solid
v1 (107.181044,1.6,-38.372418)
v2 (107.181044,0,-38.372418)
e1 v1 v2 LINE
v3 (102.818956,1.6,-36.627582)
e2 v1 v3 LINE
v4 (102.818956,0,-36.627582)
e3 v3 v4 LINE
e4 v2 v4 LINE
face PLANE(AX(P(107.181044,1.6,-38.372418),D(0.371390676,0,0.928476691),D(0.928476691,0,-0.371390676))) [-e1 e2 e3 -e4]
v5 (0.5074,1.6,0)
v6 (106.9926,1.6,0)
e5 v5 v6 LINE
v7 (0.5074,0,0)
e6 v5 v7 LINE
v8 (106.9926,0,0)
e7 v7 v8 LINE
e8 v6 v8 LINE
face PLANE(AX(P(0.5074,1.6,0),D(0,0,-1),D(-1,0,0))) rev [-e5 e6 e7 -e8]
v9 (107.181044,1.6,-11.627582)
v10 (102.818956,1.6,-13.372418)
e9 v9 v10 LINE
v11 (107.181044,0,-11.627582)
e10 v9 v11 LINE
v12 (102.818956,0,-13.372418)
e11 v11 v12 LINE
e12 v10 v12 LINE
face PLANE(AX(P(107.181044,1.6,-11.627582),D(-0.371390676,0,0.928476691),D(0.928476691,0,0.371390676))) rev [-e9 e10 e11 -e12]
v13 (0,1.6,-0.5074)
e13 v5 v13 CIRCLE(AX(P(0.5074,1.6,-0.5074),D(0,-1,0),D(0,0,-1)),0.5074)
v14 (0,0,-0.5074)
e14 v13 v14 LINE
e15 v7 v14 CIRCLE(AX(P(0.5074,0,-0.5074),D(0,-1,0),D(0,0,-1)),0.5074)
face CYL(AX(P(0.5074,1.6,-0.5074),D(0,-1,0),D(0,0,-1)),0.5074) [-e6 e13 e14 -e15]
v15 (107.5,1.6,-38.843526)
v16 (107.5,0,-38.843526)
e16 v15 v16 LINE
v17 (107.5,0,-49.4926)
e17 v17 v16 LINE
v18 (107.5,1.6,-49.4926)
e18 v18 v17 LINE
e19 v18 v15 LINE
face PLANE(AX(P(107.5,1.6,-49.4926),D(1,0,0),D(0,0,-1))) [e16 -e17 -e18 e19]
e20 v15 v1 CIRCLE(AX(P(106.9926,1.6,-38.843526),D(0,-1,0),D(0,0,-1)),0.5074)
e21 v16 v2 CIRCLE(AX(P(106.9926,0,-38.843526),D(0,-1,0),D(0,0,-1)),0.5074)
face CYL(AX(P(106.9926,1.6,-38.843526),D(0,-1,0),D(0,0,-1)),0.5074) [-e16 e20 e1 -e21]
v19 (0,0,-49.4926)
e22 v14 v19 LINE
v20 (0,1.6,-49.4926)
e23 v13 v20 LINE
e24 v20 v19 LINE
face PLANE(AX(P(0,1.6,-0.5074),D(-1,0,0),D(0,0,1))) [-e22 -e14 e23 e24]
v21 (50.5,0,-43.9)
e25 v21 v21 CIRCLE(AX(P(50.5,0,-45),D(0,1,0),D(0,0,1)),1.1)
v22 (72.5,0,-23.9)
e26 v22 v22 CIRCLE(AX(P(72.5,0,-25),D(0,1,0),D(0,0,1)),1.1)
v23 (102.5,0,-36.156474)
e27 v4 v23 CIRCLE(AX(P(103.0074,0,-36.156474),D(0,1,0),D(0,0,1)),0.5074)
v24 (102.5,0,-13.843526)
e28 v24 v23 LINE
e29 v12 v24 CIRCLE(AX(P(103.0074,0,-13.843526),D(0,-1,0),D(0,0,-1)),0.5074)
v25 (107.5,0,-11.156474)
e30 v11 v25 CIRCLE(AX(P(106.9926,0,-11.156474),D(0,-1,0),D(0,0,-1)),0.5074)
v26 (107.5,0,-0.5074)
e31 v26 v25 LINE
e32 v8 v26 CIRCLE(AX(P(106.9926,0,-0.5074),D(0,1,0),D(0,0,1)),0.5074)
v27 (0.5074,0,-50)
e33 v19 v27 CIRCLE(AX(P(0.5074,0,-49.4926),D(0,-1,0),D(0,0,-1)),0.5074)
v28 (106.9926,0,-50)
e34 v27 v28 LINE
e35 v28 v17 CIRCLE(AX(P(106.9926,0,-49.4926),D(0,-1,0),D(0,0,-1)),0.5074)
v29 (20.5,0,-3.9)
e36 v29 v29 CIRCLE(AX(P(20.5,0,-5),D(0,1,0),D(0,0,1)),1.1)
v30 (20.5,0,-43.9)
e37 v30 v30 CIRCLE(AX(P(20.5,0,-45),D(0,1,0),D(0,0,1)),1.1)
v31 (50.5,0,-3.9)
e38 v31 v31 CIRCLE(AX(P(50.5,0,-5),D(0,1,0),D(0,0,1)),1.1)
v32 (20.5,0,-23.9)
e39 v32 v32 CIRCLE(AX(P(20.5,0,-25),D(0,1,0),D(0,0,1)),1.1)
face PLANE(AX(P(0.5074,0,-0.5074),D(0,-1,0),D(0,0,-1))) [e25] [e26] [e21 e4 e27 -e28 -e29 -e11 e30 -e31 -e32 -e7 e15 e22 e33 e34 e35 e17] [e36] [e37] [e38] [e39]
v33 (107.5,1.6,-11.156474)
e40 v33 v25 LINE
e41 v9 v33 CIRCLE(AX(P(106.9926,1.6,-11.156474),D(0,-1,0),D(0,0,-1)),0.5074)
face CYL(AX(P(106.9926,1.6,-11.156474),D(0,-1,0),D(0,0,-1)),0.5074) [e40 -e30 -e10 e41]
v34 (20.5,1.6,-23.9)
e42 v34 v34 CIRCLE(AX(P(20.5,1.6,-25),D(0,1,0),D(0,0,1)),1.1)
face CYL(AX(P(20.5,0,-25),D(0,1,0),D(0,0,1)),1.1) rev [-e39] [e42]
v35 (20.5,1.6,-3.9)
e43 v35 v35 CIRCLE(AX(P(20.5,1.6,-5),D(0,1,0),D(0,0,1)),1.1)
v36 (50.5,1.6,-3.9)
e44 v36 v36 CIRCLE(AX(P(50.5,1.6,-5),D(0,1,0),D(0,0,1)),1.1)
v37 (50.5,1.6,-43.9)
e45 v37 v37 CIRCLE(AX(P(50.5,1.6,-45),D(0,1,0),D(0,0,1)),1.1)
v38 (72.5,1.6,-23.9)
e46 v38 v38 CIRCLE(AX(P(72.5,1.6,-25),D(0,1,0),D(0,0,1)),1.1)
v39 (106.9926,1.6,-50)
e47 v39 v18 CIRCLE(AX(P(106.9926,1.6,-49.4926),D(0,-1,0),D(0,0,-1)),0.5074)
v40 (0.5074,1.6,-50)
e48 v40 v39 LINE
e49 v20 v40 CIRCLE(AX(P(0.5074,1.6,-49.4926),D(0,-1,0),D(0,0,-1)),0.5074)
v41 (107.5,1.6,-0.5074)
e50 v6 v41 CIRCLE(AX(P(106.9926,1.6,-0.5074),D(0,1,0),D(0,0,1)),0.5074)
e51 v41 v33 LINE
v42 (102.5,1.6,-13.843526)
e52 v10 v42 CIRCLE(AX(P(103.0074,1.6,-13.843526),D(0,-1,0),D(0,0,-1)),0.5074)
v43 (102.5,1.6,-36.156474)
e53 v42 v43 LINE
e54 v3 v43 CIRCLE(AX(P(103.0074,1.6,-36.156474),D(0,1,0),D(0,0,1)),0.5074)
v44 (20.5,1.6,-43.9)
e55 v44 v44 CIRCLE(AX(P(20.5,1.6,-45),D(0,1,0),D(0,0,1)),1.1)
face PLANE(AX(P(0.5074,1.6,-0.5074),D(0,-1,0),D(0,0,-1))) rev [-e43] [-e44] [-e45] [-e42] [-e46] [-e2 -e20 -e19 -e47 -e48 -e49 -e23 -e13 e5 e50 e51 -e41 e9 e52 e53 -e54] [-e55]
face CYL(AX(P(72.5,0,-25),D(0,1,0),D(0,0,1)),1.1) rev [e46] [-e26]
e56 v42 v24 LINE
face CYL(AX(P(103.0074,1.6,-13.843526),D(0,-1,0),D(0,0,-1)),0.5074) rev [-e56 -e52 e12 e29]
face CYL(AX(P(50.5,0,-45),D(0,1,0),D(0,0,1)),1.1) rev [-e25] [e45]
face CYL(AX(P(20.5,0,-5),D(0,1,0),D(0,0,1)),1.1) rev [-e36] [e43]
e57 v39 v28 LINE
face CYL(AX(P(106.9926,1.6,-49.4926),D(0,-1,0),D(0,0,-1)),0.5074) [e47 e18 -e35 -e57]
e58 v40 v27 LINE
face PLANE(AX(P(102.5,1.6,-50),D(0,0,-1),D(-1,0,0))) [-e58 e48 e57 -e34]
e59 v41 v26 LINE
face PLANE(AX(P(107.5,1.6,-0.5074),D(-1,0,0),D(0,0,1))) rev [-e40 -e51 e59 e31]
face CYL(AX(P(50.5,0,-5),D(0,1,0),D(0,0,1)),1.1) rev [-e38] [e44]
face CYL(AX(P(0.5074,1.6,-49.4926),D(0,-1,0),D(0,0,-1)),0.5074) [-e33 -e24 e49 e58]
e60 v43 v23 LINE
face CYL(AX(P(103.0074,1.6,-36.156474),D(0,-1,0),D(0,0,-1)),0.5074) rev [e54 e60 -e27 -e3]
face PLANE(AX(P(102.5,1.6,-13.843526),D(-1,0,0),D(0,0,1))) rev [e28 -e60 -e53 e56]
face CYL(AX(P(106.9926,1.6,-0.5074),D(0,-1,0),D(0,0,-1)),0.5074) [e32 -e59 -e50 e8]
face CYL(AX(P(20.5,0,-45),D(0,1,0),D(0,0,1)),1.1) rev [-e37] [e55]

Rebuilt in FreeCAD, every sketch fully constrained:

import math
import FreeCAD as App
import Part
import Sketcher
from FreeCAD import Vector

doc = App.newDocument("Part")
body = doc.addObject("PartDesign::Body", "Body")

sketch1 = doc.addObject("Sketcher::SketchObject", "Sketch")
body.addObject(sketch1)
sketch1.AttachmentSupport = (doc.XZ_Plane, [""])
sketch1.MapMode = "FlatFace"
sketch1.addGeometry(Part.ArcOfCircle(Part.Circle(Vector(107, -49.5, 0), Vector(0, 0, 1), 0.5), math.radians(-90), math.radians(0)), False)
sketch1.addGeometry(Part.LineSegment(Vector(107, -50, 0), Vector(0.5, -50, 0)), False)
sketch1.addGeometry(Part.ArcOfCircle(Part.Circle(Vector(0.5, -49.5, 0), Vector(0, 0, 1), 0.5), math.radians(-180), math.radians(-90)), False)
sketch1.addGeometry(Part.LineSegment(Vector(0, -49.5, 0), Vector(0, -0.5, 0)), False)
sketch1.addGeometry(Part.ArcOfCircle(Part.Circle(Vector(0.5, -0.5, 0), Vector(0, 0, 1), 0.5), math.radians(90), math.radians(180)), False)
sketch1.addGeometry(Part.LineSegment(Vector(0.5, 0, 0), Vector(107, 0, 0)), False)
sketch1.addGeometry(Part.ArcOfCircle(Part.Circle(Vector(107, -0.5, 0), Vector(0, 0, 1), 0.5), math.radians(0), math.radians(90)), False)
sketch1.addGeometry(Part.LineSegment(Vector(107.5, -0.5, 0), Vector(107.5, -11.2, 0)), False)
sketch1.addGeometry(Part.ArcOfCircle(Part.Circle(Vector(107, -11.2, 0), Vector(0, 0, 1), 0.5), math.radians(-68), math.radians(0)), False)
sketch1.addGeometry(Part.LineSegment(Vector(107.2, -11.6, 0), Vector(102.8, -13.4, 0)), False)
sketch1.addGeometry(Part.ArcOfCircle(Part.Circle(Vector(103, -13.8, 0), Vector(0, 0, 1), 0.5), math.radians(112), math.radians(180)), False)
sketch1.addGeometry(Part.LineSegment(Vector(102.5, -13.8, 0), Vector(102.5, -36.2, 0)), False)
sketch1.addGeometry(Part.ArcOfCircle(Part.Circle(Vector(103, -36.2, 0), Vector(0, 0, 1), 0.5), math.radians(180), math.radians(248)), False)
sketch1.addGeometry(Part.LineSegment(Vector(102.8, -36.6, 0), Vector(107.2, -38.4, 0)), False)
sketch1.addGeometry(Part.ArcOfCircle(Part.Circle(Vector(107, -38.8, 0), Vector(0, 0, 1), 0.5), math.radians(0), math.radians(68)), False)
sketch1.addGeometry(Part.LineSegment(Vector(107.5, -38.8, 0), Vector(107.5, -49.5, 0)), False)
sketch1.addConstraint(Sketcher.Constraint("Tangent", 0, 1, 1, 1))
sketch1.addConstraint(Sketcher.Constraint("Tangent", 1, 2, 2, 2))
sketch1.addConstraint(Sketcher.Constraint("Tangent", 2, 1, 3, 1))
sketch1.addConstraint(Sketcher.Constraint("Tangent", 3, 2, 4, 2))
sketch1.addConstraint(Sketcher.Constraint("Tangent", 4, 1, 5, 1))
sketch1.addConstraint(Sketcher.Constraint("Tangent", 5, 2, 6, 2))
sketch1.addConstraint(Sketcher.Constraint("Tangent", 6, 1, 7, 1))
sketch1.addConstraint(Sketcher.Constraint("Tangent", 7, 2, 8, 2))
sketch1.addConstraint(Sketcher.Constraint("Tangent", 8, 1, 9, 1))
sketch1.addConstraint(Sketcher.Constraint("Tangent", 9, 2, 10, 1))
sketch1.addConstraint(Sketcher.Constraint("Tangent", 10, 2, 11, 1))
sketch1.addConstraint(Sketcher.Constraint("Tangent", 11, 2, 12, 1))
sketch1.addConstraint(Sketcher.Constraint("Tangent", 12, 2, 13, 1))
sketch1.addConstraint(Sketcher.Constraint("Tangent", 13, 2, 14, 2))
sketch1.addConstraint(Sketcher.Constraint("Tangent", 14, 1, 15, 1))
sketch1.addConstraint(Sketcher.Constraint("Tangent", 15, 2, 0, 2))
sketch1.addConstraint(Sketcher.Constraint("Horizontal", 1))
sketch1.addConstraint(Sketcher.Constraint("Vertical", 3))
sketch1.addConstraint(Sketcher.Constraint("Horizontal", 5))
sketch1.addConstraint(Sketcher.Constraint("Vertical", 7))
sketch1.addConstraint(Sketcher.Constraint("Vertical", 11))
sketch1.addConstraint(Sketcher.Constraint("Vertical", 15))
sketch1.addConstraint(Sketcher.Constraint("Equal", 0, 2))
sketch1.addConstraint(Sketcher.Constraint("Equal", 2, 4))
sketch1.addConstraint(Sketcher.Constraint("Equal", 4, 6))
sketch1.addConstraint(Sketcher.Constraint("Equal", 6, 8))
sketch1.addConstraint(Sketcher.Constraint("Equal", 8, 10))
sketch1.addConstraint(Sketcher.Constraint("Equal", 10, 12))
sketch1.addConstraint(Sketcher.Constraint("Equal", 12, 14))
sketch1.addConstraint(Sketcher.Constraint("PointOnObject", 2, 1, -2))
sketch1.addConstraint(Sketcher.Constraint("PointOnObject", 4, 1, -1))
sketch1.addConstraint(Sketcher.Constraint("Vertical", 0, 3, 6, 3))
sketch1.addConstraint(Sketcher.Constraint("Vertical", 9, 2, 12, 2))
sketch1.addConstraint(Sketcher.Constraint("Equal", 7, 15))
sketch1.addConstraint(Sketcher.Constraint("DistanceY", 0, 1, -1, 1, 50.0))
sketch1.addConstraint(Sketcher.Constraint("DistanceY", 12, 3, 8, 3, 25.0))
sketch1.addConstraint(Sketcher.Constraint("DistanceX", 10, 2, 7, 2, 5.0))
sketch1.addConstraint(Sketcher.Constraint("DistanceX", -1, 1, 6, 1, 107.5))
sketch1.addConstraint(Sketcher.Constraint("Radius", 0, 0.5074))
sketch1.addConstraint(Sketcher.Constraint("DistanceY", 7, 2, 7, 1, 10.649074))
pad1 = doc.addObject("PartDesign::Pad", "Pad")
body.addObject(pad1)
pad1.Profile = sketch1
pad1.Length = 1.6
pad1.Reversed = True

sketch2 = doc.addObject("Sketcher::SketchObject", "Sketch001")
body.addObject(sketch2)
sketch2.AttachmentSupport = (doc.XZ_Plane, [""])
sketch2.MapMode = "FlatFace"
sketch2.AttachmentOffset = App.Placement(Vector(0, 0, -1.6), App.Rotation())
sketch2.addGeometry(Part.Circle(Vector(20.5, -5, 0), Vector(0, 0, 1), 1.1), False)
sketch2.addGeometry(Part.Circle(Vector(20.5, -25, 0), Vector(0, 0, 1), 1.1), False)
sketch2.addGeometry(Part.Circle(Vector(20.5, -45, 0), Vector(0, 0, 1), 1.1), False)
sketch2.addGeometry(Part.Circle(Vector(50.5, -45, 0), Vector(0, 0, 1), 1.1), False)
sketch2.addGeometry(Part.Circle(Vector(50.5, -5, 0), Vector(0, 0, 1), 1.1), False)
sketch2.addGeometry(Part.Circle(Vector(72.5, -25, 0), Vector(0, 0, 1), 1.1), False)
sketch2.addConstraint(Sketcher.Constraint("Equal", 0, 1))
sketch2.addConstraint(Sketcher.Constraint("Equal", 1, 2))
sketch2.addConstraint(Sketcher.Constraint("Equal", 2, 3))
sketch2.addConstraint(Sketcher.Constraint("Equal", 3, 4))
sketch2.addConstraint(Sketcher.Constraint("Equal", 4, 5))
sketch2.addConstraint(Sketcher.Constraint("Horizontal", 2, 3, 3, 3))
sketch2.addConstraint(Sketcher.Constraint("Horizontal", 0, 3, 4, 3))
sketch2.addConstraint(Sketcher.Constraint("Horizontal", 1, 3, 5, 3))
sketch2.addConstraint(Sketcher.Constraint("Vertical", 0, 3, 1, 3))
sketch2.addConstraint(Sketcher.Constraint("Vertical", 1, 3, 2, 3))
sketch2.addConstraint(Sketcher.Constraint("Vertical", 3, 3, 4, 3))
sketch2.addConstraint(Sketcher.Constraint("Diameter", 0, 2.2))
sketch2.addConstraint(Sketcher.Constraint("DistanceY", 0, 3, -1, 1, 5.0))
sketch2.addConstraint(Sketcher.Constraint("DistanceY", 1, 3, -1, 1, 25.0))
sketch2.addConstraint(Sketcher.Constraint("DistanceY", 2, 3, -1, 1, 45.0))
sketch2.addConstraint(Sketcher.Constraint("DistanceX", 2, 3, 3, 3, 30.0))
sketch2.addConstraint(Sketcher.Constraint("DistanceX", 3, 3, 5, 3, 22.0))
sketch2.addConstraint(Sketcher.Constraint("DistanceX", -1, 1, 0, 3, 20.5))
pocket1 = doc.addObject("PartDesign::Pocket", "Pocket")
body.addObject(pocket1)
pocket1.Profile = sketch2
pocket1.Type = "ThroughAll"
pocket1.Reversed = True

doc.recompute()
